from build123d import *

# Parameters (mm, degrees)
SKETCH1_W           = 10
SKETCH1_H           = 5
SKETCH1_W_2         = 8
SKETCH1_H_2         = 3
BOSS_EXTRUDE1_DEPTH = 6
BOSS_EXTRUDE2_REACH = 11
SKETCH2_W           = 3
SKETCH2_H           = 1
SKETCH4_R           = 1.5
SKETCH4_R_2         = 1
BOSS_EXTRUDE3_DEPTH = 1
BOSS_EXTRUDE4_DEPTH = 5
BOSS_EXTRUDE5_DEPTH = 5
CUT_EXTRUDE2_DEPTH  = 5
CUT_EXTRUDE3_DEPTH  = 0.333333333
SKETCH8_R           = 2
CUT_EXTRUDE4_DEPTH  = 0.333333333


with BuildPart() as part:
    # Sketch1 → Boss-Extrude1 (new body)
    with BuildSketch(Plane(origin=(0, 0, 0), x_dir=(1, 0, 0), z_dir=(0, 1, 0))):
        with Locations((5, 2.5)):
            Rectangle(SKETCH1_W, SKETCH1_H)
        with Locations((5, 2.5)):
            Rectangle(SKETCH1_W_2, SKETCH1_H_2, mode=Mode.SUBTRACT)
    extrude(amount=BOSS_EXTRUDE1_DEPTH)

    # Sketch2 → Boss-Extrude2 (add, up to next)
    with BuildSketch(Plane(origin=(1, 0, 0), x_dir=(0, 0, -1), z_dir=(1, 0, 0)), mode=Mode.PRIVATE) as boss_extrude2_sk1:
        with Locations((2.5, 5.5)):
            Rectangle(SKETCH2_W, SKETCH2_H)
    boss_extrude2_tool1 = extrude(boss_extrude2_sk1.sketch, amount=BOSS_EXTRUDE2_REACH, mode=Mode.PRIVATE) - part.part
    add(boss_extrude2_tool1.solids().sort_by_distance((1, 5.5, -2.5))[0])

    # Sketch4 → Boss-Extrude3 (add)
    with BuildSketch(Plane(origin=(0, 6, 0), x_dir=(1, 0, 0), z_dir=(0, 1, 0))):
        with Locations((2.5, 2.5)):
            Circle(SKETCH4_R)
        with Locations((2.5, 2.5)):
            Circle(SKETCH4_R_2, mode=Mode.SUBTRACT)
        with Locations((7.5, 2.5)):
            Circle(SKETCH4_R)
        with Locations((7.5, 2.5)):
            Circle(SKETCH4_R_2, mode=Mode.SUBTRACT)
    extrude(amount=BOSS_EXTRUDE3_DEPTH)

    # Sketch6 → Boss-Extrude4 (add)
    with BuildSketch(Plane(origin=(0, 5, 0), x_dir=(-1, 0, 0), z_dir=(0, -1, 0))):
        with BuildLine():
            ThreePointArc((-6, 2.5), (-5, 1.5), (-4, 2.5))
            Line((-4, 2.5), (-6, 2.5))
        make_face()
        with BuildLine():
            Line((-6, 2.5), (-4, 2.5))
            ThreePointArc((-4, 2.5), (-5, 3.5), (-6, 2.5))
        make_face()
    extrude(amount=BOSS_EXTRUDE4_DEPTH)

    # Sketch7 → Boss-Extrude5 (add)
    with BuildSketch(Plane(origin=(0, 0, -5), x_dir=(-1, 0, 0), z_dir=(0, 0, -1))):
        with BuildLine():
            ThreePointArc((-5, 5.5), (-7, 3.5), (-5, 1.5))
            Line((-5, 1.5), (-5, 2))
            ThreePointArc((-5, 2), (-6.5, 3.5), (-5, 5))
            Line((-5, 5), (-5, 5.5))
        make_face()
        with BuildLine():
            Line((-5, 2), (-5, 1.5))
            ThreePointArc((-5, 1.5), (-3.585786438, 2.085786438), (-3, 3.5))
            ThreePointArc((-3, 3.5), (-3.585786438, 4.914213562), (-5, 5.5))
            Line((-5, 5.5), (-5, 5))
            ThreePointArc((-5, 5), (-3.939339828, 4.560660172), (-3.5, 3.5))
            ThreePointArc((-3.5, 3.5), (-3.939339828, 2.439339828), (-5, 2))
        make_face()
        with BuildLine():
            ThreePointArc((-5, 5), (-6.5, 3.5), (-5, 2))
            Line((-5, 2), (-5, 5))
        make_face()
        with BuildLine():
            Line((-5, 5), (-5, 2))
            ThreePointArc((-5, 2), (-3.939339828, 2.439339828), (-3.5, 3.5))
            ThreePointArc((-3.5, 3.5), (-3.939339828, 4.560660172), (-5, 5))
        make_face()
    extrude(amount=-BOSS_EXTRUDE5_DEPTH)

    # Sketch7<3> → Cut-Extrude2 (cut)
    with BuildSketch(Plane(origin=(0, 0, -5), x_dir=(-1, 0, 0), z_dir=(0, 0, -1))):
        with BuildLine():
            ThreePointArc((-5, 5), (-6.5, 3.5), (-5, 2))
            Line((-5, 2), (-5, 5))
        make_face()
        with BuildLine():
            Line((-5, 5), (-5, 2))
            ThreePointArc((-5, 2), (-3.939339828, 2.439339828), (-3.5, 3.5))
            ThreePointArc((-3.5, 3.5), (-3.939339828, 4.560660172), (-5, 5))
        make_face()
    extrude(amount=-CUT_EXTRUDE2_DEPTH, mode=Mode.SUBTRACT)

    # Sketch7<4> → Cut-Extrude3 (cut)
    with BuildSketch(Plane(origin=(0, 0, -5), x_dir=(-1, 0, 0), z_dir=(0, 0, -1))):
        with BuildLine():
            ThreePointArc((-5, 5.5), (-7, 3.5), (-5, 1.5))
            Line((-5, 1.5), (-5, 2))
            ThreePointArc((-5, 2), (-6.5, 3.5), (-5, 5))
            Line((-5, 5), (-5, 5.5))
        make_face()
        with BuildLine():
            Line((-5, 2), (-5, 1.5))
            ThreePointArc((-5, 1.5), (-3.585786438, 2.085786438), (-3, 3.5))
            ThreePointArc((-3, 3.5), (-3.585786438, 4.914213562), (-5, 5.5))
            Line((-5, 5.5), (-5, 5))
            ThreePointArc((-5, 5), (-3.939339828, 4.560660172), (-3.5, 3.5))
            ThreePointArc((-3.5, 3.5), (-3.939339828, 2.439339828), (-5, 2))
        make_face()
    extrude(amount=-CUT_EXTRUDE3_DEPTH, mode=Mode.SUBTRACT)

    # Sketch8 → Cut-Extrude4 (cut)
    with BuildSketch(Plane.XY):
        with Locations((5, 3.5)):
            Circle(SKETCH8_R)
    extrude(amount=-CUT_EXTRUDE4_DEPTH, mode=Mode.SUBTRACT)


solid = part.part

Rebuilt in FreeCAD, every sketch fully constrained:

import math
import FreeCAD as App
import Part
import Sketcher
from FreeCAD import Vector


def add_polygon(sketch, points):
    """Adds a closed chain of lines whose ends are joined by coincident constraints."""
    first, n = sketch.GeometryCount, len(points)
    for a, b in zip(points, points[1:] + points[:1]):
        sketch.addGeometry(Part.LineSegment(App.Vector(*a, 0), App.Vector(*b, 0)), False)
    for i in range(n):
        sketch.addConstraint(Sketcher.Constraint("Coincident", first + i, 2, first + (i + 1) % n, 1))

doc = App.newDocument("Part")
body = doc.addObject("PartDesign::Body", "Body")

# Sketch on XZ plane
sketch1 = body.newObject("Sketcher::SketchObject", "Sketch")
sketch1.AttachmentSupport = (doc.getObject("XZ_Plane"), [""])
sketch1.MapMode = "FlatFace"
add_polygon(sketch1, [(0, -5), (0, 0), (10, 0), (10, -5)])  # lines 0-3
add_polygon(sketch1, [(9, -1), (1, -1), (1, -4), (9, -4)])  # lines 4-7
sketch1.addConstraint([
    Sketcher.Constraint("Vertical", 0),
    Sketcher.Constraint("Horizontal", 1),
    Sketcher.Constraint("Vertical", 2),
    Sketcher.Constraint("Horizontal", 3),
    Sketcher.Constraint("Horizontal", 4),
    Sketcher.Constraint("Vertical", 5),
    Sketcher.Constraint("Horizontal", 6),
    Sketcher.Constraint("Vertical", 7),
    Sketcher.Constraint("Coincident", 0, 2, -1, 1),
    Sketcher.Constraint("DistanceX", 1, 1, 1, 2, 10.0),
    Sketcher.Constraint("DistanceX", 4, 2, 4, 1, 8.0),
    Sketcher.Constraint("DistanceY", 0, 1, 0, 2, 5.0),
    Sketcher.Constraint("DistanceY", 5, 2, 5, 1, 3.0),
    Sketcher.Constraint("DistanceX", -1, 1, 4, 2, 1.0),
    Sketcher.Constraint("DistanceY", 4, 2, -1, 1, 1.0),
])
pad1 = body.newObject("PartDesign::Pad", "Pad")
pad1.Profile = sketch1
pad1.Length = 6
pad1.Reversed = True

# Sketch on YZ plane
sketch2 = body.newObject("Sketcher::SketchObject", "Sketch001")
sketch2.AttachmentSupport = (doc.getObject("YZ_Plane"), [""])
sketch2.MapMode = "FlatFace"
sketch2.AttachmentOffset = App.Placement(Vector(0, 0, 1), App.Rotation())
add_polygon(sketch2, [(6, -1), (5, -1), (5, -4), (6, -4)])  # lines 0-3
sketch2.addConstraint([
    Sketcher.Constraint("Horizontal", 0),
    Sketcher.Constraint("Vertical", 1),
    Sketcher.Constraint("Horizontal", 2),
    Sketcher.Constraint("Vertical", 3),
    Sketcher.Constraint("DistanceX", 0, 2, 0, 1, 1.0),
    Sketcher.Constraint("DistanceY", 1, 2, 1, 1, 3.0),
    Sketcher.Constraint("DistanceX", -1, 1, 0, 2, 5.0),
    Sketcher.Constraint("DistanceY", 0, 2, -1, 1, 1.0),
])
pad2 = body.newObject("PartDesign::Pad", "Pad001")
pad2.Profile = sketch2
pad2.Type = "UpToFirst"

# Sketch on XZ plane
sketch3 = body.newObject("Sketcher::SketchObject", "Sketch002")
sketch3.AttachmentSupport = (doc.getObject("XZ_Plane"), [""])
sketch3.MapMode = "FlatFace"
sketch3.AttachmentOffset = App.Placement(Vector(0, 0, -6), App.Rotation())
sketch3.addGeometry([
    Part.Circle(Vector(2.5, -2.5, 0), Vector(0, 0, 1), 1.5),
    Part.Circle(Vector(2.5, -2.5, 0), Vector(0, 0, 1), 1),
    Part.Circle(Vector(7.5, -2.5, 0), Vector(0, 0, 1), 1.5),
    Part.Circle(Vector(7.5, -2.5, 0), Vector(0, 0, 1), 1),
], False)
sketch3.addConstraint([
    Sketcher.Constraint("Coincident", 1, 3, 0, 3),
    Sketcher.Constraint("Coincident", 3, 3, 2, 3),
    Sketcher.Constraint("Equal", 0, 2),
    Sketcher.Constraint("Equal", 1, 3),
    Sketcher.Constraint("Horizontal", 1, 3, 2, 3),
    Sketcher.Constraint("Diameter", 0, 3.0),
    Sketcher.Constraint("Diameter", 1, 2.0),
    Sketcher.Constraint("DistanceX", 0, 3, 2, 3, 5.0),
    Sketcher.Constraint("DistanceX", -1, 1, 0, 3, 2.5),
    Sketcher.Constraint("DistanceY", 0, 3, -1, 1, 2.5),
])
pad3 = body.newObject("PartDesign::Pad", "Pad002")
pad3.Profile = sketch3
pad3.Length = 1
pad3.Reversed = True

# Sketch on XZ plane
sketch4 = body.newObject("Sketcher::SketchObject", "Sketch003")
sketch4.AttachmentSupport = (doc.getObject("XZ_Plane"), [""])
sketch4.MapMode = "FlatFace"
sketch4.AttachmentOffset = App.Placement(Vector(0, 0, -5), App.Rotation())
sketch4.addGeometry(Part.Circle(Vector(5, -2.5, 0), Vector(0, 0, 1), 1), False)
sketch4.addConstraint([
    Sketcher.Constraint("Diameter", 0, 2.0),
    Sketcher.Constraint("DistanceX", -1, 1, 0, 3, 5.0),
    Sketcher.Constraint("DistanceY", 0, 3, -1, 1, 2.5),
])
pad4 = body.newObject("PartDesign::Pad", "Pad003")
pad4.Profile = sketch4
pad4.Length = 5

# Sketch on XY plane
sketch5 = body.newObject("Sketcher::SketchObject", "Sketch004")
sketch5.AttachmentSupport = (doc.getObject("XY_Plane"), [""])
sketch5.MapMode = "FlatFace"
sketch5.AttachmentOffset = App.Placement(Vector(0, 0, -5), App.Rotation())
sketch5.addGeometry([
    Part.ArcOfCircle(Part.Circle(Vector(5, 3.5, 0), Vector(0, 0, 1), 2), math.radians(-90), math.radians(90)),
    Part.ArcOfCircle(Part.Circle(Vector(5, 3.5, 0), Vector(0, 0, 1), 2), math.radians(-180), math.radians(-90)),
    Part.ArcOfCircle(Part.Circle(Vector(5, 3.5, 0), Vector(0, 0, 1), 2), math.radians(90), math.radians(180)),
], False)
sketch5.addConstraint([
    Sketcher.Constraint("Tangent", 0, 1, 1, 2),
    Sketcher.Constraint("Tangent", 1, 1, 2, 2),
    Sketcher.Constraint("Tangent", 2, 1, 0, 2),
    Sketcher.Constraint("Horizontal", 2, 3, 1, 1),
    Sketcher.Constraint("Vertical", 2, 3, 0, 1),
    Sketcher.Constraint("Vertical", 0, 1, 2, 1),
    Sketcher.Constraint("Radius", 0, 2.0),
    Sketcher.Constraint("DistanceX", -1, 1, 0, 3, 5.0),
    Sketcher.Constraint("DistanceY", -1, 1, 0, 3, 3.5),
])
pad5 = body.newObject("PartDesign::Pad", "Pad004")
pad5.Profile = sketch5
pad5.Length = 5

# Sketch on XY plane
sketch6 = body.newObject("Sketcher::SketchObject", "Sketch005")
sketch6.AttachmentSupport = (doc.getObject("XY_Plane"), [""])
sketch6.MapMode = "FlatFace"
sketch6.AttachmentOffset = App.Placement(Vector(0, 0, -5), App.Rotation())
sketch6.addGeometry([
    Part.ArcOfCircle(Part.Circle(Vector(5, 3.5, 0), Vector(0, 0, 1), 1.5), math.radians(-90), math.radians(90)),
    Part.ArcOfCircle(Part.Circle(Vector(5, 3.5, 0), Vector(0, 0, 1), 1.5), math.radians(180), math.radians(270)),
    Part.ArcOfCircle(Part.Circle(Vector(5, 3.5, 0), Vector(0, 0, 1), 1.5), math.radians(90), math.radians(180)),
], False)
sketch6.addConstraint([
    Sketcher.Constraint("Tangent", 0, 1, 1, 2),
    Sketcher.Constraint("Tangent", 1, 1, 2, 2),
    Sketcher.Constraint("Tangent", 2, 1, 0, 2),
    Sketcher.Constraint("Horizontal", 2, 3, 1, 1),
    Sketcher.Constraint("Vertical", 2, 3, 0, 1),
    Sketcher.Constraint("Vertical", 0, 1, 2, 1),
    Sketcher.Constraint("Radius", 0, 1.5),
    Sketcher.Constraint("DistanceX", -1, 1, 0, 3, 5.0),
    Sketcher.Constraint("DistanceY", -1, 1, 0, 1, 2.0),
])
pocket1 = body.newObject("PartDesign::Pocket", "Pocket")
pocket1.Profile = sketch6
pocket1.Length = 5
pocket1.Reversed = True

# Sketch on XY plane
sketch7 = body.newObject("Sketcher::SketchObject", "Sketch006")
sketch7.AttachmentSupport = (doc.getObject("XY_Plane"), [""])
sketch7.MapMode = "FlatFace"
sketch7.AttachmentOffset = App.Placement(Vector(0, 0, -5), App.Rotation())
sketch7.addGeometry([
    Part.ArcOfCircle(Part.Circle(Vector(5, 3.5, 0), Vector(0, 0, 1), 2), math.radians(-90), math.radians(90)),  # 0
    Part.ArcOfCircle(Part.Circle(Vector(5, 3.5, 0), Vector(0, 0, 1), 2), math.radians(-180), math.radians(-90)),  # 1
    Part.ArcOfCircle(Part.Circle(Vector(5, 3.5, 0), Vector(0, 0, 1), 2), math.radians(90), math.radians(180)),  # 2
    Part.ArcOfCircle(Part.Circle(Vector(5, 3.5, 0), Vector(0, 0, 1), 1.5), math.radians(-90), math.radians(90)),  # 3
    Part.ArcOfCircle(Part.Circle(Vector(5, 3.5, 0), Vector(0, 0, 1), 1.5), math.radians(90), math.radians(180)),  # 4
    Part.ArcOfCircle(Part.Circle(Vector(5, 3.5, 0), Vector(0, 0, 1), 1.5), math.radians(180), math.radians(270)),  # 5
], False)
sketch7.addConstraint([
    Sketcher.Constraint("Tangent", 0, 1, 1, 2),
    Sketcher.Constraint("Tangent", 1, 1, 2, 2),
    Sketcher.Constraint("Tangent", 2, 1, 0, 2),
    Sketcher.Constraint("Tangent", 3, 2, 4, 1),
    Sketcher.Constraint("Tangent", 4, 2, 5, 1),
    Sketcher.Constraint("Tangent", 5, 2, 3, 1),
    Sketcher.Constraint("Coincident", 3, 3, 0, 3),
    Sketcher.Constraint("Horizontal", 5, 3, 1, 1),
    Sketcher.Constraint("Horizontal", 1, 1, 4, 2),
    Sketcher.Constraint("Vertical", 5, 3, 0, 1),
    Sketcher.Constraint("Vertical", 0, 1, 2, 1),
    Sketcher.Constraint("Vertical", 2, 1, 3, 2),
    Sketcher.Constraint("Vertical", 3, 2, 5, 2),
    Sketcher.Constraint("Radius", 0, 2.0),
    Sketcher.Constraint("Radius", 3, 1.5),
    Sketcher.Constraint("DistanceX", -1, 1, 0, 3, 5.0),
    Sketcher.Constraint("DistanceY", -1, 1, 3, 2, 5.0),
])
pocket2 = body.newObject("PartDesign::Pocket", "Pocket001")
pocket2.Profile = sketch7
pocket2.Length = 0.333333
pocket2.Reversed = True

# Sketch on XY plane
sketch8 = body.newObject("Sketcher::SketchObject", "Sketch007")
sketch8.AttachmentSupport = (doc.getObject("XY_Plane"), [""])
sketch8.MapMode = "FlatFace"
sketch8.addGeometry(Part.Circle(Vector(5, 3.5, 0), Vector(0, 0, 1), 2), False)
sketch8.addConstraint([
    Sketcher.Constraint("Diameter", 0, 4.0),
    Sketcher.Constraint("DistanceX", -1, 1, 0, 3, 5.0),
    Sketcher.Constraint("DistanceY", -1, 1, 0, 3, 3.5),
])
pocket3 = body.newObject("PartDesign::Pocket", "Pocket002")
pocket3.Profile = sketch8
pocket3.Length = 0.333333

doc.recompute()
